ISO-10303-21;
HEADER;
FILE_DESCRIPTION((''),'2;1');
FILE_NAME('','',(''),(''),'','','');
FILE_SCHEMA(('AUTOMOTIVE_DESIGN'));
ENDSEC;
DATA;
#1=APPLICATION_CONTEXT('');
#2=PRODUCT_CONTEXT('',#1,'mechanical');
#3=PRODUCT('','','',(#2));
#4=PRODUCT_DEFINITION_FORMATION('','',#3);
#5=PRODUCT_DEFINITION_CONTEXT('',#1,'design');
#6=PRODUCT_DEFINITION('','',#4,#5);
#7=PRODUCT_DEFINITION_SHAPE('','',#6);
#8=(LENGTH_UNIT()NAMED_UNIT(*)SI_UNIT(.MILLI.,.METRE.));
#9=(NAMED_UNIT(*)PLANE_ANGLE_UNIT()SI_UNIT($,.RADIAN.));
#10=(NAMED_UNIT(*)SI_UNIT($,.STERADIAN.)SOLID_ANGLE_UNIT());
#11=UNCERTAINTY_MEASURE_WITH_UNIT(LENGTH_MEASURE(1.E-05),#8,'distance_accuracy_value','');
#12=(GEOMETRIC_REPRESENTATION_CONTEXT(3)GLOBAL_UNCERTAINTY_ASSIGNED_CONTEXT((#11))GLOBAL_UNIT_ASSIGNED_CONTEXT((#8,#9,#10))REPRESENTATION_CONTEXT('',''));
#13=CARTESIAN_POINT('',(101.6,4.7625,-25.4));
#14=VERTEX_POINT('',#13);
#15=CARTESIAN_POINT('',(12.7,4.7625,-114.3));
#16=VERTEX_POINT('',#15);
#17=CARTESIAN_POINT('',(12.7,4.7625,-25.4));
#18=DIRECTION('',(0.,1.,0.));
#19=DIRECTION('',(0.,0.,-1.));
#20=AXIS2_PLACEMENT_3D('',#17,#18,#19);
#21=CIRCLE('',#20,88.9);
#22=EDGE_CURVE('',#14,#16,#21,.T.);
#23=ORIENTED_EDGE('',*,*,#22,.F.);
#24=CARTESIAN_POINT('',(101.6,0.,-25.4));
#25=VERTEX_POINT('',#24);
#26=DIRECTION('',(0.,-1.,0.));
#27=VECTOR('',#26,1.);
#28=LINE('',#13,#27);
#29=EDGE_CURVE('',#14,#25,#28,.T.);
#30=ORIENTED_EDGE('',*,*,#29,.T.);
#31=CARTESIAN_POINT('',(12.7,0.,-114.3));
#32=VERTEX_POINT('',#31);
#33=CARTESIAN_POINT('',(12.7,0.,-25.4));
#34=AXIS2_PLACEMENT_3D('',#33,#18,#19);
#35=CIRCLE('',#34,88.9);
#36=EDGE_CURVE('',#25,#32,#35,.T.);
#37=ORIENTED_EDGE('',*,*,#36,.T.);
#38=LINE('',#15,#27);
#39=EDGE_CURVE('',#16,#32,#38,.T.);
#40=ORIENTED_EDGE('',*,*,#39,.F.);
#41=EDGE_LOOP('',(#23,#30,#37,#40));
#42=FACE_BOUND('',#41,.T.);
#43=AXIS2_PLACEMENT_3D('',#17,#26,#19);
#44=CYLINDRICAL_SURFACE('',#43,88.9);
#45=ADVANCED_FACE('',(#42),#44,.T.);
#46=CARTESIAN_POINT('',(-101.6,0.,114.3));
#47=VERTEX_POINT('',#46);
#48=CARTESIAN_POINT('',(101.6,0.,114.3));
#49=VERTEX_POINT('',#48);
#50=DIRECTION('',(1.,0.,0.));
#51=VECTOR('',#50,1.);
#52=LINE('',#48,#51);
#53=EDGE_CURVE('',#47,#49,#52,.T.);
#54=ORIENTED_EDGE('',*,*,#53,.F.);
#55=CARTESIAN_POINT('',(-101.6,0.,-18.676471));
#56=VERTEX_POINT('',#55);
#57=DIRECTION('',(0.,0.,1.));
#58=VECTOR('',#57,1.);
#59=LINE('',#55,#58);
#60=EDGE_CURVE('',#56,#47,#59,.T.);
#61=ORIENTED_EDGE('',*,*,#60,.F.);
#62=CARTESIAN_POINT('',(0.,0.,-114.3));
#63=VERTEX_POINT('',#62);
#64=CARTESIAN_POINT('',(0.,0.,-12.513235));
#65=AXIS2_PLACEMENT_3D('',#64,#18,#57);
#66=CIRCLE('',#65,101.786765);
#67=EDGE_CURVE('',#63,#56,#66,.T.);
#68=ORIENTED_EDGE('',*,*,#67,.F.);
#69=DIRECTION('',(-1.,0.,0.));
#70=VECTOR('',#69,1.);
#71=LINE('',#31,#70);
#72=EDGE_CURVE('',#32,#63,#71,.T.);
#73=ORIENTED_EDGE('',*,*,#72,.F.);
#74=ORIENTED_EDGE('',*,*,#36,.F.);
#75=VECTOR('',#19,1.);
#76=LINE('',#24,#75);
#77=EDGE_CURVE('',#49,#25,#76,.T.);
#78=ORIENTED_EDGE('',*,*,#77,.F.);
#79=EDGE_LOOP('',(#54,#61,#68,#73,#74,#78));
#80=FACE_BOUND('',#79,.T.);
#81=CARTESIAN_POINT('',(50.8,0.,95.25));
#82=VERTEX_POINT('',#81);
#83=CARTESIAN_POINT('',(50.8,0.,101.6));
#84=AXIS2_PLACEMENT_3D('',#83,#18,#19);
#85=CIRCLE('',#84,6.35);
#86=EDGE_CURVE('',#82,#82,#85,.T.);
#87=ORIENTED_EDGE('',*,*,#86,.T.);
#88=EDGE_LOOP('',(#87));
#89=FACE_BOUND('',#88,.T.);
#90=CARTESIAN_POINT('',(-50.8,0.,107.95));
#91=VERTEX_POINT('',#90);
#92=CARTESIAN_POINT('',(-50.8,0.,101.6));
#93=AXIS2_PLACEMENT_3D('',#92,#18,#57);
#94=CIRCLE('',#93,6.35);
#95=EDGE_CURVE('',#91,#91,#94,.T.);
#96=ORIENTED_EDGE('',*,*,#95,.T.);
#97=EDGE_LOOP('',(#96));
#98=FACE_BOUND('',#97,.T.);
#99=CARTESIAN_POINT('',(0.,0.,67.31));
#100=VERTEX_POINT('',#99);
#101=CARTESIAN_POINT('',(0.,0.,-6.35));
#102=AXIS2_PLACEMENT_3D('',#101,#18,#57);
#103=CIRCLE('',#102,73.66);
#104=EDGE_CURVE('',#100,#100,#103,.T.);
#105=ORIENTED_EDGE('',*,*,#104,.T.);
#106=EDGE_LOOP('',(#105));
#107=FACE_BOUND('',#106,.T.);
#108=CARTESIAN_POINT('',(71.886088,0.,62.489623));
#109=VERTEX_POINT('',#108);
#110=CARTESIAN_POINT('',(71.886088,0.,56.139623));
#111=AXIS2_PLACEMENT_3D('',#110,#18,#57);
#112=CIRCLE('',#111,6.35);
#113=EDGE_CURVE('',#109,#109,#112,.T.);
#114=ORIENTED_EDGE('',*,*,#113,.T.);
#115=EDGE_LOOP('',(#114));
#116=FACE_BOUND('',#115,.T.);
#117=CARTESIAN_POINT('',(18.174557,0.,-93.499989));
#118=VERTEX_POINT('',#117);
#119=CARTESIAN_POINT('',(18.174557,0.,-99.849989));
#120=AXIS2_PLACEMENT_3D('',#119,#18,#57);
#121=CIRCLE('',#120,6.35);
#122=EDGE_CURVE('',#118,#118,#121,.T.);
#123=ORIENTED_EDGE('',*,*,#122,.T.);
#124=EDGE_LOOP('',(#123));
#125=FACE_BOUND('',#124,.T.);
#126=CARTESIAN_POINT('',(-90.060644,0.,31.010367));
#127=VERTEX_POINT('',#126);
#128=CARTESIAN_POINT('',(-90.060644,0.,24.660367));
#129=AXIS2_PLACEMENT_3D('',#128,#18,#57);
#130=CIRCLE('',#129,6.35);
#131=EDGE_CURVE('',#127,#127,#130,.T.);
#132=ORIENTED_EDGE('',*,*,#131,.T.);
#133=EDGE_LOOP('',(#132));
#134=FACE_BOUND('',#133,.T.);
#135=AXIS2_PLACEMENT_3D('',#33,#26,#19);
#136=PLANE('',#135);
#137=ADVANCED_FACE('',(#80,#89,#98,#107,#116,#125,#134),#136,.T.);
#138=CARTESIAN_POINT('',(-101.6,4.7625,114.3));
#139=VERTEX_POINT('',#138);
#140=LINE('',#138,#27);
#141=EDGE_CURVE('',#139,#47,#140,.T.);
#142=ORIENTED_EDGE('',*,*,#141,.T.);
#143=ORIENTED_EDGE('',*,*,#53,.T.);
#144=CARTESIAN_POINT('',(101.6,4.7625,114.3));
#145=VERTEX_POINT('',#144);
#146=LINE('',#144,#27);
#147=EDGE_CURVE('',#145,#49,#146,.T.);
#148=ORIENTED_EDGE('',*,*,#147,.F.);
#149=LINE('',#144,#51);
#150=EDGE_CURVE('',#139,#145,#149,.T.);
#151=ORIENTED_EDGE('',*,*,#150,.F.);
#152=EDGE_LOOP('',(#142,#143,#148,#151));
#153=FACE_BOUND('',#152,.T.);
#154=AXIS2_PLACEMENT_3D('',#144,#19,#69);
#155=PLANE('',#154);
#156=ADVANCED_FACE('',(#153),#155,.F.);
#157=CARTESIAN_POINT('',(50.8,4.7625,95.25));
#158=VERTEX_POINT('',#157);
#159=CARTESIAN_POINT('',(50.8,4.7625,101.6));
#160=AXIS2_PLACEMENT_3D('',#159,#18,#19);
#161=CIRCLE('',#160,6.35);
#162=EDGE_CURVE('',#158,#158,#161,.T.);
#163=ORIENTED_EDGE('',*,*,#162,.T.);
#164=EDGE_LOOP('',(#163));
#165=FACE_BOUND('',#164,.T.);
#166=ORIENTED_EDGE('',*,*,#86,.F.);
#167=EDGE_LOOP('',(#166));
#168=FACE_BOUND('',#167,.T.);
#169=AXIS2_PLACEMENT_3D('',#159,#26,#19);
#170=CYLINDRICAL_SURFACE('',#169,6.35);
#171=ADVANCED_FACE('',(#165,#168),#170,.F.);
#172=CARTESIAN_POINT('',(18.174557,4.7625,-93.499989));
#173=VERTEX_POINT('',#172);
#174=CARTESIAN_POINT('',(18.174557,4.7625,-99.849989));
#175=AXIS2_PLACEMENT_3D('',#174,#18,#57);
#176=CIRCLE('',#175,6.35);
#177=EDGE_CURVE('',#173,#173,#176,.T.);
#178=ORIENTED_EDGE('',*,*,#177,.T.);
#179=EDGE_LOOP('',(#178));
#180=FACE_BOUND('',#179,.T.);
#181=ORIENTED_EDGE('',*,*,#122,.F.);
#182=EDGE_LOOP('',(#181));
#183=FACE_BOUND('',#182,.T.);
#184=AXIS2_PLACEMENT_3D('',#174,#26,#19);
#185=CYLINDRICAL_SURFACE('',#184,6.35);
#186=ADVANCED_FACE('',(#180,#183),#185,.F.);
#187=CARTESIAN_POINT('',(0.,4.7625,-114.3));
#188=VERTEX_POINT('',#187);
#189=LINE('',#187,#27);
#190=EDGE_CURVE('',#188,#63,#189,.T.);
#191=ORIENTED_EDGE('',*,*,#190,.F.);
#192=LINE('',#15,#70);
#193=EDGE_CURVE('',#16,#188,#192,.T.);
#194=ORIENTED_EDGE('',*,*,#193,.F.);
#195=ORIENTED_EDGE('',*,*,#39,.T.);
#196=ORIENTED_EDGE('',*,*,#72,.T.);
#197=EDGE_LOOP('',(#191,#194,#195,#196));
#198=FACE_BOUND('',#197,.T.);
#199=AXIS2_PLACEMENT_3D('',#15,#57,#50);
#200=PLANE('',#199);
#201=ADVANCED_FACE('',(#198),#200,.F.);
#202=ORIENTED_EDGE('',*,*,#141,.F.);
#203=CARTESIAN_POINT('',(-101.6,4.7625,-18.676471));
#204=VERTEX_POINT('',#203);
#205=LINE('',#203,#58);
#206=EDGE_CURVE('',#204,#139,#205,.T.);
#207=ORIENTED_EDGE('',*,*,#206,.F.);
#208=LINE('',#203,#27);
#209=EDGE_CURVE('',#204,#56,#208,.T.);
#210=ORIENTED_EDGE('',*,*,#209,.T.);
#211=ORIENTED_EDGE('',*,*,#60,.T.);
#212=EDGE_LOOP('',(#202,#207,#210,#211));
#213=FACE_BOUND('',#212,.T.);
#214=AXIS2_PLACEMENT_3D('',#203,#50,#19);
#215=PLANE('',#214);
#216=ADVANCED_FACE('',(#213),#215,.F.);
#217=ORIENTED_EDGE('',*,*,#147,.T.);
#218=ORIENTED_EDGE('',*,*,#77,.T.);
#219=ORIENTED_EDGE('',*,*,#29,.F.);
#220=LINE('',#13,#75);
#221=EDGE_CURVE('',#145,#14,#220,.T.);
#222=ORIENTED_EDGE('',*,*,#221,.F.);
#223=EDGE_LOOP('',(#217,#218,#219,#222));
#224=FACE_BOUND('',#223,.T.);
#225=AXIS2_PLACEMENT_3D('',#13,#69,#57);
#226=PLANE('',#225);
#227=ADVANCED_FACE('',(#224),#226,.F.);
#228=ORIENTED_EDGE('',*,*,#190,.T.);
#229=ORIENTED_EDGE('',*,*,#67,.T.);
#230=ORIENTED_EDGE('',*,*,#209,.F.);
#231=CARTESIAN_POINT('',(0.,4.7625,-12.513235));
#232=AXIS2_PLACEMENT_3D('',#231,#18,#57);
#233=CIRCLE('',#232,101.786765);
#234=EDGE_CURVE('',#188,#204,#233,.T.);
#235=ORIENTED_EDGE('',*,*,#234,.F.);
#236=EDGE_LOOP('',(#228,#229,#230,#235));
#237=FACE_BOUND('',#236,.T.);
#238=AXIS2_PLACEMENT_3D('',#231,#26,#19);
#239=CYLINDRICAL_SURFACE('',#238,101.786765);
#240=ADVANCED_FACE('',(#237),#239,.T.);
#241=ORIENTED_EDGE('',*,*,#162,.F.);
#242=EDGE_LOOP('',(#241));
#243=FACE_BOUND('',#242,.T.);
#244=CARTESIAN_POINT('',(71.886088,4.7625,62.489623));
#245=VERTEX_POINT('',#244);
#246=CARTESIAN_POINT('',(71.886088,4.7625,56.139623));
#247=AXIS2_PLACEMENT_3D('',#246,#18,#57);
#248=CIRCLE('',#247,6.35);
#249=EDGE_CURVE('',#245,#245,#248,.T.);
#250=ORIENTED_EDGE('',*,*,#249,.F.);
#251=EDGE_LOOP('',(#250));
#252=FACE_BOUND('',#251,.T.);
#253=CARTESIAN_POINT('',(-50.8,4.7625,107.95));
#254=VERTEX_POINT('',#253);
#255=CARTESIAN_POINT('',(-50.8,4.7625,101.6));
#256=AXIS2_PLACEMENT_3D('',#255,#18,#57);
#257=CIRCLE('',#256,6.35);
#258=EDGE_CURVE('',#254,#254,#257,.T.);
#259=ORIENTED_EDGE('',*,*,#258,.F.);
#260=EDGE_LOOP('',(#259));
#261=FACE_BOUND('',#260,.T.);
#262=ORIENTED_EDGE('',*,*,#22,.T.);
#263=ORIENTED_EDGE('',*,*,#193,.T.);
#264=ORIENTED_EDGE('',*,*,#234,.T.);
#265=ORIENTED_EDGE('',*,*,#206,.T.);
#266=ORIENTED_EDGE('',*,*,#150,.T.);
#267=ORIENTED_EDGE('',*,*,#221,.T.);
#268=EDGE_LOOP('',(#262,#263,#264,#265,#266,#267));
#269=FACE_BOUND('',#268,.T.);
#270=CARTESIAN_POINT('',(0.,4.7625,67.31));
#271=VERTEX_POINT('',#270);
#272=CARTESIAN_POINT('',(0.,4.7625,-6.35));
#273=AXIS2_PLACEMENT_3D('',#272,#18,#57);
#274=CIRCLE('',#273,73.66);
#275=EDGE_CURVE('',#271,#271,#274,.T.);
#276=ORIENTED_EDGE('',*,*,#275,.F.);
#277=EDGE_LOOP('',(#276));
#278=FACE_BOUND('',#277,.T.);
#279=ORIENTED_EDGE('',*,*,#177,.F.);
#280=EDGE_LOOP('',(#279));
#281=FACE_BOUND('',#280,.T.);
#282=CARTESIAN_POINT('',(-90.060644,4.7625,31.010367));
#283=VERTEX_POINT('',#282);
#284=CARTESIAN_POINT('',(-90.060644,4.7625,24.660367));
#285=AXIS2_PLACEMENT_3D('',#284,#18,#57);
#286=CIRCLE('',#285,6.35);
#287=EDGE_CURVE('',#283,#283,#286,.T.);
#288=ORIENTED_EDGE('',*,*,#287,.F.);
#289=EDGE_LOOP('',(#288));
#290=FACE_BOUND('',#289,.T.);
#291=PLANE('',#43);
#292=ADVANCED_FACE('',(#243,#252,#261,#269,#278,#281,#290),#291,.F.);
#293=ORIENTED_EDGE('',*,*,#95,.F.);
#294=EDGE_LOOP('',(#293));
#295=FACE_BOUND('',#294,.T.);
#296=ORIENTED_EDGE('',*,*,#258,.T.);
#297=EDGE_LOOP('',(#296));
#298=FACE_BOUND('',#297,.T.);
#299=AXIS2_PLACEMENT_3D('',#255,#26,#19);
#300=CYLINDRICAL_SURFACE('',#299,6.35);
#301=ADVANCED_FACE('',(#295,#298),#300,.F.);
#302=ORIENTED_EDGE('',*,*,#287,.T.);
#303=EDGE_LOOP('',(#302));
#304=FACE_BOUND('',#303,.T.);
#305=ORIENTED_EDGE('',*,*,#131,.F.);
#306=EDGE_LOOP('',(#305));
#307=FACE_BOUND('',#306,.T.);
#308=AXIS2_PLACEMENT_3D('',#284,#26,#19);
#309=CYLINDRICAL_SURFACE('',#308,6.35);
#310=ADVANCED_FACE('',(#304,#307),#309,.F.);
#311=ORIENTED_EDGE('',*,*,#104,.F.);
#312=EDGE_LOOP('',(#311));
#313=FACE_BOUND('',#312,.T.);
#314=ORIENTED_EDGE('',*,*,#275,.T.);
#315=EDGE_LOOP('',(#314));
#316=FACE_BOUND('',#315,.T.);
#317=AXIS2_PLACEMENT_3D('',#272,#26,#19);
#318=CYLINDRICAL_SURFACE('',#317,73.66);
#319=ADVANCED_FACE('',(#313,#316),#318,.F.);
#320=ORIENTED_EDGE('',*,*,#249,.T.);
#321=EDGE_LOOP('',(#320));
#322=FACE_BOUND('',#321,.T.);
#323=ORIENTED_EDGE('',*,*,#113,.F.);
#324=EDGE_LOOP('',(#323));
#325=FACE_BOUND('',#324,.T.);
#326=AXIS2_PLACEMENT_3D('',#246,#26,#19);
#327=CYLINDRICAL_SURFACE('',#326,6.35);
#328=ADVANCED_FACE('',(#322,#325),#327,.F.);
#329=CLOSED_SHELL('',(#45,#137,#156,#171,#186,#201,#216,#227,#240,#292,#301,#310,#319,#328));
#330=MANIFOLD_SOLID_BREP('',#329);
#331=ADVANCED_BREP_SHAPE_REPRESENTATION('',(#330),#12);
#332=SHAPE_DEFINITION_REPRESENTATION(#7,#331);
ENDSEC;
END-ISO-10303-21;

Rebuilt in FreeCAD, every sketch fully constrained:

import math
import FreeCAD as App
import Part
import Sketcher
Q = App.Units.Quantity

doc = App.newDocument("Part")
body = doc.addObject("PartDesign::Body", "Body")

sketch1 = body.newObject("Sketcher::SketchObject", "Sketch")
sketch1.AttachmentSupport = (doc.getObject("XZ_Plane"), [""])
sketch1.MapMode = "FlatFace"
sketch1.addGeometry([
    Part.LineSegment(App.Vector(12.7, -114.3, 0), App.Vector(0, -114.3, 0)),
    Part.ArcOfCircle(Part.Circle(App.Vector(0, -12.513235, 0), App.Vector(0, 0, 1), 101.786765), math.radians(-176.528591), math.radians(-90)),
    Part.LineSegment(App.Vector(-101.6, -18.676471, 0), App.Vector(-101.6, 114.3, 0)),
    Part.LineSegment(App.Vector(-101.6, 114.3, 0), App.Vector(101.6, 114.3, 0)),
    Part.LineSegment(App.Vector(101.6, 114.3, 0), App.Vector(101.6, -25.4, 0)),
    Part.ArcOfCircle(Part.Circle(App.Vector(12.7, -25.4, 0), App.Vector(0, 0, 1), 88.9), math.radians(-90), math.radians(0)),
    Part.Circle(App.Vector(-50.8, 101.6, 0), App.Vector(0, 0, 1), 6.35),
    Part.Circle(App.Vector(-90.060644, 24.660367, 0), App.Vector(0, 0, 1), 6.35),
    Part.Circle(App.Vector(50.8, 101.6, 0), App.Vector(0, 0, 1), 6.35),
    Part.Circle(App.Vector(71.886088, 56.139623, 0), App.Vector(0, 0, 1), 6.35),
    Part.Circle(App.Vector(0, -6.35, 0), App.Vector(0, 0, 1), 73.66),
    Part.Circle(App.Vector(18.174557, -99.849989, 0), App.Vector(0, 0, 1), 6.35),
], False)
sketch1.addConstraint([
    Sketcher.Constraint("Tangent", 0, 2, 1, 2),
    Sketcher.Constraint("Coincident", 1, 1, 2, 1),
    Sketcher.Constraint("Coincident", 2, 2, 3, 1),
    Sketcher.Constraint("Coincident", 3, 2, 4, 1),
    Sketcher.Constraint("Tangent", 4, 2, 5, 2),
    Sketcher.Constraint("Tangent", 5, 1, 0, 1),
    Sketcher.Constraint("Horizontal", 0),
    Sketcher.Constraint("Vertical", 2),
    Sketcher.Constraint("Horizontal", 3),
    Sketcher.Constraint("Vertical", 4),
    Sketcher.Constraint("Equal", 6, 7),
    Sketcher.Constraint("Equal", 7, 8),
    Sketcher.Constraint("Equal", 8, 9),
    Sketcher.Constraint("Equal", 9, 11),
    Sketcher.Constraint("Symmetric", 6, 3, 8, 3, -2),
    Sketcher.Constraint("PointOnObject", 1, 3, -2),
    Sketcher.Constraint("PointOnObject", 10, 3, -2),
    Sketcher.Constraint("Diameter", 6, Q("0.5 in")),
    Sketcher.Constraint("Diameter", 10, Q("5.8 in")),
    Sketcher.Constraint("Radius", 5, Q("3.5 in")),
    Sketcher.Constraint("DistanceX", 3, 1, 3, 2, Q("8 in")),
    Sketcher.Constraint("DistanceX", 0, 2, 0, 1, Q("0.5 in")),
    Sketcher.Constraint("DistanceY", 4, 2, 4, 1, Q("5.5 in")),
    Sketcher.Constraint("DistanceY", 5, 3, -1, 1, Q("1 in")),
    Sketcher.Constraint("DistanceX", 6, 3, -1, 1, Q("2 in")),
    Sketcher.Constraint("DistanceY", -1, 1, 6, 3, Q("4 in")),
    Sketcher.Constraint("DistanceY", 10, 3, -1, 1, Q("0.25 in")),
    Sketcher.Constraint("Radius", 1, 101.786765),
    Sketcher.Constraint("DistanceX", 7, 3, 11, 3, 108.235201),
    Sketcher.Constraint("DistanceY", 11, 3, -1, 1, 99.849989),
    Sketcher.Constraint("DistanceX", 7, 3, 9, 3, 161.946732),
    Sketcher.Constraint("DistanceY", 11, 3, 9, 3, 155.989612),
    Sketcher.Constraint("DistanceX", 7, 3, -1, 1, 90.060644),
    Sketcher.Constraint("DistanceY", -1, 1, 7, 3, 24.660367),
])
pad1 = body.newObject("PartDesign::Pad", "Pad")
pad1.Profile = sketch1
pad1.Length = Q("0.1875 in")
pad1.Reversed = True

doc.recompute()
